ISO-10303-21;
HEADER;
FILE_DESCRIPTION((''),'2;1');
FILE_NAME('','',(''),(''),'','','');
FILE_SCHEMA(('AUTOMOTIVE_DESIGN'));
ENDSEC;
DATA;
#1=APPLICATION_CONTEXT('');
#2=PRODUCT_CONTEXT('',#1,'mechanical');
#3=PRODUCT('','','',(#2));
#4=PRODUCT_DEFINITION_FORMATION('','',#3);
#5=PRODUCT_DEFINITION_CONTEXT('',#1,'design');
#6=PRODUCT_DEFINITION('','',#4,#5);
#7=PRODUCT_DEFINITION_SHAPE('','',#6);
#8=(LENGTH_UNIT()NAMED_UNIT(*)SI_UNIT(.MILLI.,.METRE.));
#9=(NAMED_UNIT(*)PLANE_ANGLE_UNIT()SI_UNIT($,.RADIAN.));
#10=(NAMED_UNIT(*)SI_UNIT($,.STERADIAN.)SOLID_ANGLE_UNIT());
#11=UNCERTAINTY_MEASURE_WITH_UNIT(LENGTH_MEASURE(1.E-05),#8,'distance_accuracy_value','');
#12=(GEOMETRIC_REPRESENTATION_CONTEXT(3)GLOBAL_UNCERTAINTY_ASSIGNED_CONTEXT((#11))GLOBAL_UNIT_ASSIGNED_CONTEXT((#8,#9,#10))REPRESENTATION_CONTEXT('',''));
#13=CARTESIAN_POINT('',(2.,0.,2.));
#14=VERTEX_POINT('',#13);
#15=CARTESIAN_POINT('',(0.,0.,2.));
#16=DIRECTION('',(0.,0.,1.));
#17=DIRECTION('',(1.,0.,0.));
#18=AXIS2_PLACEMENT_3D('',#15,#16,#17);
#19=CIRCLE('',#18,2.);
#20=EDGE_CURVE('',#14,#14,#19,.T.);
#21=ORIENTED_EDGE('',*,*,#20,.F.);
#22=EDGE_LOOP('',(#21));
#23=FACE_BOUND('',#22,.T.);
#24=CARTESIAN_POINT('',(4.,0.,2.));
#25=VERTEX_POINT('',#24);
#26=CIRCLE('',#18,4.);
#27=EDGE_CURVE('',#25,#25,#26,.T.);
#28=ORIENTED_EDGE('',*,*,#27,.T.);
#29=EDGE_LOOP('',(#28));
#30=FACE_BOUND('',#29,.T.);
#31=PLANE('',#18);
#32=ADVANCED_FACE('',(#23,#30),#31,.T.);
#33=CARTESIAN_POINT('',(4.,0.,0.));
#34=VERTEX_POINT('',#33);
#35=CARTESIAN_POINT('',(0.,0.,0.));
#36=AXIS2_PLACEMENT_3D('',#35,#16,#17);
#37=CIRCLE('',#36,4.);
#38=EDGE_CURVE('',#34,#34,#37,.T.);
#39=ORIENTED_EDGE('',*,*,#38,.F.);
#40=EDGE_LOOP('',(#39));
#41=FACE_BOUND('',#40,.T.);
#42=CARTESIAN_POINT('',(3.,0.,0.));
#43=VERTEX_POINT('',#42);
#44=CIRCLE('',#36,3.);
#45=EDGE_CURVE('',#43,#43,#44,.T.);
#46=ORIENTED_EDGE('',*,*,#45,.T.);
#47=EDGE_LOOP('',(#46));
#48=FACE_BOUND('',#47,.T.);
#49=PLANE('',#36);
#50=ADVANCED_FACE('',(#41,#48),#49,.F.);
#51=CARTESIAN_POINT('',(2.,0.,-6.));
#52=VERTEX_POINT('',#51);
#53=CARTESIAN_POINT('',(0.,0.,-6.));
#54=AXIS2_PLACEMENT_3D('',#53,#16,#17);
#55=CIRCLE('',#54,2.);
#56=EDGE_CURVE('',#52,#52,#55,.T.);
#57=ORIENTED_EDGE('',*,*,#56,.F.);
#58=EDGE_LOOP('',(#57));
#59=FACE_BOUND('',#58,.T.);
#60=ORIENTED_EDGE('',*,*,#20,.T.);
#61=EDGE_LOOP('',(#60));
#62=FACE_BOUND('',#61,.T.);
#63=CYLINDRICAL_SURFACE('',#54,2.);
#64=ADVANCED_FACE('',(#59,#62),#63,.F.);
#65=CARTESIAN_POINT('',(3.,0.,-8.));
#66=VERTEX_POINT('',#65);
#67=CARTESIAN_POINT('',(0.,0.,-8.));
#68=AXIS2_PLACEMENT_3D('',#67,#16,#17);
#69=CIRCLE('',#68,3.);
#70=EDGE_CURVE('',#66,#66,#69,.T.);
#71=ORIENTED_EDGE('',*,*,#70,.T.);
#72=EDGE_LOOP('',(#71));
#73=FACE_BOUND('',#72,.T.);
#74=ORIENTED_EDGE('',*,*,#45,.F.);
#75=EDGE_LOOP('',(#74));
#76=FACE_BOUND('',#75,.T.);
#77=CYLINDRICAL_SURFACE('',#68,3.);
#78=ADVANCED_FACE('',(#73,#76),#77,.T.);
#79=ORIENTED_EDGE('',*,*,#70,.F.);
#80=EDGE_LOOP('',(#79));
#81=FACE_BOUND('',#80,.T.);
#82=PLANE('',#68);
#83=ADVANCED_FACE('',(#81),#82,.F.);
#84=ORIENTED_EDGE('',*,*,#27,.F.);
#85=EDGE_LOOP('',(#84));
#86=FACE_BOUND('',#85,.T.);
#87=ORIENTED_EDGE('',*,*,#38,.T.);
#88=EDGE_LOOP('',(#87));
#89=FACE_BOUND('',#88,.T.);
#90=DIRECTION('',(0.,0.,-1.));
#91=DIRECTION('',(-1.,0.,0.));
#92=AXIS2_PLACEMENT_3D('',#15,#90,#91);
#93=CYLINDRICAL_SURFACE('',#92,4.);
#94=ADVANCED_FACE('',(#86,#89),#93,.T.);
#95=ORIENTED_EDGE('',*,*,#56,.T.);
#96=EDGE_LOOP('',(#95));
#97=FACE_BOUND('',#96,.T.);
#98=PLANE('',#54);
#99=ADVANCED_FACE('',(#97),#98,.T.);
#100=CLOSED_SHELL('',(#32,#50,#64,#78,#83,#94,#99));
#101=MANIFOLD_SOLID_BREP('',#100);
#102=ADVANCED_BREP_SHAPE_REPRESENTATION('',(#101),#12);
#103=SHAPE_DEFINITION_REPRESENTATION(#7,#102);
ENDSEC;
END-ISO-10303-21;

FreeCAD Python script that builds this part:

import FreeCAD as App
import Part
import Sketcher

V = App.Vector
Q = App.Units.Quantity

doc = App.newDocument("Part")
params = doc.addObject("Spreadsheet::Sheet", "Params")
for row, (alias, value) in enumerate([
    ("sketch1_diameter", "8 mm"),
    ("pad1_length", "2 mm"),
    ("sketch2_diameter", "6 mm"),
    ("pad2_length", "8 mm"),
    ("sketch3_diameter", "4 mm"),
    ("pocket1_length", "8 mm"),
], start=1):
    params.set(f"A{row}", alias)
    params.set(f"B{row}", "=" + value)
    params.setAlias(f"B{row}", alias)

body = doc.addObject("PartDesign::Body", "Body")

# Sketch on XY plane
sketch1 = doc.addObject("Sketcher::SketchObject", "Sketch")
body.addObject(sketch1)
sketch1.AttachmentSupport = (doc.XY_Plane, [""])
sketch1.MapMode = "FlatFace"
sketch1.addGeometry(Part.Circle(V(0, 0, 0), V(0, 0, 1), 4), False)
sketch1.addConstraint(Sketcher.Constraint("Coincident", 0, 3, -1, 1))
sketch1.addConstraint(Sketcher.Constraint("Diameter", 0, Q("8 mm")))
sketch1.setExpression("Constraints[1]", "Params.sketch1_diameter")
pad1 = doc.addObject("PartDesign::Pad", "Pad")
body.addObject(pad1)
pad1.Profile = sketch1
pad1.setExpression("Length", "Params.pad1_length")

# Sketch on XY plane
sketch2 = doc.addObject("Sketcher::SketchObject", "Sketch001")
body.addObject(sketch2)
sketch2.AttachmentSupport = (doc.XY_Plane, [""])
sketch2.MapMode = "FlatFace"
sketch2.addGeometry(Part.Circle(V(0, 0, 0), V(0, 0, 1), 3), False)
sketch2.addConstraint(Sketcher.Constraint("Coincident", 0, 3, -1, 1))
sketch2.addConstraint(Sketcher.Constraint("Diameter", 0, Q("6 mm")))
sketch2.setExpression("Constraints[1]", "Params.sketch2_diameter")
pad2 = doc.addObject("PartDesign::Pad", "Pad001")
body.addObject(pad2)
pad2.Profile = sketch2
pad2.setExpression("Length", "Params.pad2_length")
pad2.Reversed = True

# Sketch on XY plane
sketch3 = doc.addObject("Sketcher::SketchObject", "Sketch002")
body.addObject(sketch3)
sketch3.AttachmentSupport = (doc.XY_Plane, [""])
sketch3.MapMode = "FlatFace"
sketch3.AttachmentOffset = App.Placement(V(0, 0, 2), App.Rotation())
sketch3.addGeometry(Part.Circle(V(0, 0, 0), V(0, 0, 1), 2), False)
sketch3.addConstraint(Sketcher.Constraint("Coincident", 0, 3, -1, 1))
sketch3.addConstraint(Sketcher.Constraint("Diameter", 0, Q("4 mm")))
sketch3.setExpression("Constraints[1]", "Params.sketch3_diameter")
pocket1 = doc.addObject("PartDesign::Pocket", "Pocket")
body.addObject(pocket1)
pocket1.Profile = sketch3
pocket1.setExpression("Length", "Params.pocket1_length")

doc.recompute()
